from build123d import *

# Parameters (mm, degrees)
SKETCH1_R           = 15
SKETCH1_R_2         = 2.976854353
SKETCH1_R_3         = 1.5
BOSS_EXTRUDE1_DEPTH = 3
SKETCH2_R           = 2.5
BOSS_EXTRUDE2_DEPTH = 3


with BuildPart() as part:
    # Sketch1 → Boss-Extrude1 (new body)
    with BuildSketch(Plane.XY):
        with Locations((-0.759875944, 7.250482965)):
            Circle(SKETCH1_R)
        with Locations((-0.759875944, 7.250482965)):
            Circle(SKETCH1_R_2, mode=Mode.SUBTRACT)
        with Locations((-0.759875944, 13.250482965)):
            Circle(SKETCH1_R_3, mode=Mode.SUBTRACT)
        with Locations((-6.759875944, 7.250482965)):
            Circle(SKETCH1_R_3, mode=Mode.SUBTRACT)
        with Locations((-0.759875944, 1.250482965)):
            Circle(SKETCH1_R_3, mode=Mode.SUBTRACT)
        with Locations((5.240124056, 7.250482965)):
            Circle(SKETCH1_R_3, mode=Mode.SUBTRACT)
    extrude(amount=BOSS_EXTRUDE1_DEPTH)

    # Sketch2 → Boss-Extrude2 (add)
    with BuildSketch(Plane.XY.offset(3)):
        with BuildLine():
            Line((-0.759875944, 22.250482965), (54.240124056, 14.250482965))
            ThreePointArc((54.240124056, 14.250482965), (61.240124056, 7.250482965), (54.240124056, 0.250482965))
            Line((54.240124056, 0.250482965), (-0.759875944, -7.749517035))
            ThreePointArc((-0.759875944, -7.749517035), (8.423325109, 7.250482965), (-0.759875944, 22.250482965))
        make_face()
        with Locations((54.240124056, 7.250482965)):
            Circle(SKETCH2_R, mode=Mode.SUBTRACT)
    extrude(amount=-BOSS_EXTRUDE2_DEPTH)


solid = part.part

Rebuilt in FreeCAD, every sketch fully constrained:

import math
import FreeCAD as App
import Part
import Sketcher
from FreeCAD import Vector
Q = App.Units.Quantity

doc = App.newDocument("Part")
body = doc.addObject("PartDesign::Body", "Body")

# Sketch on XY plane
sketch1 = body.newObject("Sketcher::SketchObject", "Sketch")
sketch1.AttachmentSupport = (doc.getObject("XY_Plane"), [""])
sketch1.MapMode = "FlatFace"
sketch1.addGeometry(Part.Circle(Vector(-0.759876, 7.250483, 0), Vector(0, 0, 1), 15), False)
sketch1.addGeometry(Part.Circle(Vector(-0.759876, 1.250483, 0), Vector(0, 0, 1), 1.5), False)
sketch1.addGeometry(Part.Circle(Vector(-6.759876, 7.250483, 0), Vector(0, 0, 1), 1.5), False)
sketch1.addGeometry(Part.Circle(Vector(-0.759876, 7.250483, 0), Vector(0, 0, 1), 2.976854), False)
sketch1.addGeometry(Part.Circle(Vector(5.240124, 7.250483, 0), Vector(0, 0, 1), 1.5), False)
sketch1.addGeometry(Part.Circle(Vector(-0.759876, 13.250483, 0), Vector(0, 0, 1), 1.5), False)
sketch1.addConstraint(Sketcher.Constraint("Coincident", 3, 3, 0, 3))
sketch1.addConstraint(Sketcher.Constraint("Equal", 1, 2))
sketch1.addConstraint(Sketcher.Constraint("Equal", 2, 4))
sketch1.addConstraint(Sketcher.Constraint("Equal", 4, 5))
sketch1.addConstraint(Sketcher.Constraint("Horizontal", 0, 3, 2, 3))
sketch1.addConstraint(Sketcher.Constraint("Horizontal", 3, 3, 4, 3))
sketch1.addConstraint(Sketcher.Constraint("Vertical", 0, 3, 1, 3))
sketch1.addConstraint(Sketcher.Constraint("Vertical", 3, 3, 5, 3))
sketch1.addConstraint(Sketcher.Constraint("Diameter", 0, Q("30 mm")))
sketch1.addConstraint(Sketcher.Constraint("Diameter", 1, Q("3 mm")))
sketch1.addConstraint(Sketcher.Constraint("DistanceY", 1, 3, 0, 3, Q("6 mm")))
sketch1.addConstraint(Sketcher.Constraint("DistanceX", 2, 3, 0, 3, Q("6 mm")))
sketch1.addConstraint(Sketcher.Constraint("DistanceX", 0, 3, 4, 3, Q("6 mm")))
sketch1.addConstraint(Sketcher.Constraint("DistanceY", 0, 3, 5, 3, Q("6 mm")))
sketch1.addConstraint(Sketcher.Constraint("Diameter", 3, Q("5.953709 mm")))
sketch1.addConstraint(Sketcher.Constraint("DistanceX", 0, 3, -1, 1, Q("0.759876 mm")))
sketch1.addConstraint(Sketcher.Constraint("DistanceY", -1, 1, 0, 3, Q("7.250483 mm")))
pad1 = body.newObject("PartDesign::Pad", "Pad")
pad1.Profile = sketch1
pad1.Length = 3

# Sketch on XY plane
sketch2 = body.newObject("Sketcher::SketchObject", "Sketch001")
sketch2.AttachmentSupport = (doc.getObject("XY_Plane"), [""])
sketch2.MapMode = "FlatFace"
sketch2.AttachmentOffset = App.Placement(Vector(0, 0, 3), App.Rotation())
sketch2.addGeometry(Part.LineSegment(Vector(54.240124, 14.250483, 0), Vector(-0.759876, 22.250483, 0)), False)
sketch2.addGeometry(Part.ArcOfCircle(Part.Circle(Vector(-8.418906, 7.250483, 0), Vector(0, 0, 1), 16.842231), math.radians(-62.951054), math.radians(62.951054)), False)
sketch2.addGeometry(Part.LineSegment(Vector(-0.759876, -7.749517, 0), Vector(54.240124, 0.250483, 0)), False)
sketch2.addGeometry(Part.ArcOfCircle(Part.Circle(Vector(54.240124, 7.250483, 0), Vector(0, 0, 1), 7), math.radians(-90), math.radians(90)), False)
sketch2.addGeometry(Part.Circle(Vector(54.240124, 7.250483, 0), Vector(0, 0, 1), 2.5), False)
sketch2.addConstraint(Sketcher.Constraint("Coincident", 0, 2, 1, 2))
sketch2.addConstraint(Sketcher.Constraint("Coincident", 1, 1, 2, 1))
sketch2.addConstraint(Sketcher.Constraint("Coincident", 2, 2, 3, 1))
sketch2.addConstraint(Sketcher.Constraint("Coincident", 3, 2, 0, 1))
sketch2.addConstraint(Sketcher.Constraint("Coincident", 4, 3, 3, 3))
sketch2.addConstraint(Sketcher.Constraint("Horizontal", 1, 3, 3, 3))
sketch2.addConstraint(Sketcher.Constraint("Vertical", 0, 2, 1, 1))
sketch2.addConstraint(Sketcher.Constraint("Vertical", 4, 3, 2, 2))
sketch2.addConstraint(Sketcher.Constraint("Vertical", 2, 2, 3, 2))
sketch2.addConstraint(Sketcher.Constraint("Diameter", 4, Q("5 mm")))
sketch2.addConstraint(Sketcher.Constraint("Radius", 3, Q("7 mm")))
sketch2.addConstraint(Sketcher.Constraint("DistanceY", 1, 3, 0, 2, Q("15 mm")))
sketch2.addConstraint(Sketcher.Constraint("DistanceX", 0, 2, 3, 3, Q("55 mm")))
sketch2.addConstraint(Sketcher.Constraint("Radius", 1, Q("16.842231 mm")))
sketch2.addConstraint(Sketcher.Constraint("DistanceX", 1, 3, -1, 1, Q("8.418906 mm")))
sketch2.addConstraint(Sketcher.Constraint("DistanceY", -1, 1, 1, 3, Q("7.250483 mm")))
pad2 = body.newObject("PartDesign::Pad", "Pad001")
pad2.Profile = sketch2
pad2.Length = 3
pad2.Reversed = True

doc.recompute()
